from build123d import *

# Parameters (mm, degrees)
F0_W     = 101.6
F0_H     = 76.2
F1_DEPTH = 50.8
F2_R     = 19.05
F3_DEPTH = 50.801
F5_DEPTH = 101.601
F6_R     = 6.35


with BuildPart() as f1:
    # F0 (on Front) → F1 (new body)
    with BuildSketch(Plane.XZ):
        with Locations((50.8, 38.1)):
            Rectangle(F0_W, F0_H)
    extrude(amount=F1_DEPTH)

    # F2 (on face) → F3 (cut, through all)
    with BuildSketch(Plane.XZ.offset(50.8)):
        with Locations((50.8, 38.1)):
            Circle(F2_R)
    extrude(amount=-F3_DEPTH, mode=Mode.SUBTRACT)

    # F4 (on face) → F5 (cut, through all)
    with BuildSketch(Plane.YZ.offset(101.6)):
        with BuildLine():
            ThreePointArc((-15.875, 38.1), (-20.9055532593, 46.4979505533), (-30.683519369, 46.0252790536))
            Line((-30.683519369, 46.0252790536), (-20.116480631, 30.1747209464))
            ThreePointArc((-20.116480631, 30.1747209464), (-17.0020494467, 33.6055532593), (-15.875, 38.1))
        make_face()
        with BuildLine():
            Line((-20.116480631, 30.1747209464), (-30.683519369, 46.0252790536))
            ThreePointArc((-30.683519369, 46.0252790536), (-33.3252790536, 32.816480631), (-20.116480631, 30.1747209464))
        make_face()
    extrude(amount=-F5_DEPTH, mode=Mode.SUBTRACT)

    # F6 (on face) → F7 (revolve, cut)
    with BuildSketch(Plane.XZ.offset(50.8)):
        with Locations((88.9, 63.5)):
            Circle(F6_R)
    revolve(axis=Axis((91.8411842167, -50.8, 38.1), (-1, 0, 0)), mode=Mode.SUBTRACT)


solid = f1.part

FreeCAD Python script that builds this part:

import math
import FreeCAD as App
import Part
import Sketcher
Q = App.Units.Quantity

doc = App.newDocument("Part")
body = doc.addObject("PartDesign::Body", "Body")

# Sketch on XZ plane
sketch1 = body.newObject("Sketcher::SketchObject", "Sketch")
sketch1.AttachmentSupport = (doc.getObject("XZ_Plane"), [""])
sketch1.MapMode = "FlatFace"
sketch1.addGeometry([
    Part.LineSegment(App.Vector(0, 76, 0), App.Vector(0, 0, 0)),
    Part.LineSegment(App.Vector(0, 0, 0), App.Vector(102, 0, 0)),
    Part.LineSegment(App.Vector(102, 0, 0), App.Vector(102, 76, 0)),
    Part.LineSegment(App.Vector(102, 76, 0), App.Vector(0, 76, 0)),
], False)
sketch1.addConstraint([
    Sketcher.Constraint("Coincident", 0, 2, 1, 1),
    Sketcher.Constraint("Coincident", 1, 2, 2, 1),
    Sketcher.Constraint("Coincident", 2, 2, 3, 1),
    Sketcher.Constraint("Coincident", 3, 2, 0, 1),
    Sketcher.Constraint("Vertical", 0),
    Sketcher.Constraint("Horizontal", 1),
    Sketcher.Constraint("Vertical", 2),
    Sketcher.Constraint("Horizontal", 3),
    Sketcher.Constraint("Coincident", 0, 2, -1, 1),
    Sketcher.Constraint("DistanceX", 1, 1, 1, 2, Q("4 in")),
    Sketcher.Constraint("DistanceY", 0, 2, 0, 1, Q("3 in")),
])
pad1 = body.newObject("PartDesign::Pad", "Pad")
pad1.Profile = sketch1
pad1.Length = Q("2 in")

# Sketch on XZ plane
sketch2 = body.newObject("Sketcher::SketchObject", "Sketch001")
sketch2.AttachmentSupport = (doc.getObject("XZ_Plane"), [""])
sketch2.MapMode = "FlatFace"
sketch2.AttachmentOffset = App.Placement(App.Vector(0, 0, 2 * 25.4), App.Rotation())
sketch2.addGeometry(Part.Circle(App.Vector(51, 38, 0), App.Vector(0, 0, 1), 19), False)
sketch2.addConstraint([
    Sketcher.Constraint("Diameter", 0, Q("1.5 in")),
    Sketcher.Constraint("DistanceX", -1, 1, 0, 3, Q("2 in")),
    Sketcher.Constraint("DistanceY", -1, 1, 0, 3, Q("1.5 in")),
])
pocket1 = body.newObject("PartDesign::Pocket", "Pocket")
pocket1.Profile = sketch2
pocket1.Type = "ThroughAll"

# Sketch on YZ plane
sketch3 = body.newObject("Sketcher::SketchObject", "Sketch002")
sketch3.AttachmentSupport = (doc.getObject("YZ_Plane"), [""])
sketch3.MapMode = "FlatFace"
sketch3.AttachmentOffset = App.Placement(App.Vector(0, 0, 4 * 25.4), App.Rotation())
sketch3.addGeometry([
    Part.ArcOfCircle(Part.Circle(App.Vector(-25, 38, 0), App.Vector(0, 0, 1), 10), math.radians(0), math.radians(124)),
    Part.ArcOfCircle(Part.Circle(App.Vector(-25, 38, 0), App.Vector(0, 0, 1), 10), math.radians(124), math.radians(304)),
    Part.ArcOfCircle(Part.Circle(App.Vector(-25, 38, 0), App.Vector(0, 0, 1), 10), math.radians(-56), math.radians(0)),
], False)
sketch3.addConstraint([
    Sketcher.Constraint("Tangent", 0, 2, 1, 1),
    Sketcher.Constraint("Tangent", 1, 2, 2, 1),
    Sketcher.Constraint("Tangent", 2, 2, 0, 1),
    Sketcher.Constraint("Horizontal", 1, 3, 2, 2),
    Sketcher.Constraint("DistanceX", 0, 3, -1, 1, Q("1 in")),
    Sketcher.Constraint("Radius", 0, Q("0.375 in")),
    Sketcher.Constraint("DistanceY", -1, 1, 0, 3, Q("1.5 in")),
    Sketcher.Constraint("DistanceX", 0, 2, -1, 1, 30.683519),
    Sketcher.Constraint("DistanceX", 1, 2, -1, 1, 20.116481),
])
pocket2 = body.newObject("PartDesign::Pocket", "Pocket001")
pocket2.Profile = sketch3
pocket2.Type = "ThroughAll"

# Sketch on XZ plane
sketch4 = body.newObject("Sketcher::SketchObject", "Sketch003")
sketch4.AttachmentSupport = (doc.getObject("XZ_Plane"), [""])
sketch4.MapMode = "FlatFace"
sketch4.AttachmentOffset = App.Placement(App.Vector(0, 0, 2 * 25.4), App.Rotation())
sketch4.addGeometry(Part.Circle(App.Vector(89, 64, 0), App.Vector(0, 0, 1), 6), False)
sketch4.addGeometry(Part.LineSegment(App.Vector(89, 38, 0), App.Vector(79, 38, 0)), True)  # axis
sketch4.addConstraint([
    Sketcher.Constraint("Horizontal", 1),
    Sketcher.Constraint("Vertical", 0, 3, 1, 1),
    Sketcher.Constraint("Diameter", 0, Q("0.5 in")),
    Sketcher.Constraint("DistanceY", 1, 1, 0, 3, Q("1 in")),
    Sketcher.Constraint("DistanceX", -1, 1, 0, 3, Q("3.5 in")),
    Sketcher.Constraint("DistanceY", -1, 1, 0, 3, Q("2.5 in")),
    Sketcher.Constraint("DistanceX", 1, 2, 1, 1, 10.0),
])
groove = body.newObject("PartDesign::Groove", "Groove")
groove.Profile = sketch4
groove.ReferenceAxis = (sketch4, ["Axis0"])
groove.Angle = 360

doc.recompute()
